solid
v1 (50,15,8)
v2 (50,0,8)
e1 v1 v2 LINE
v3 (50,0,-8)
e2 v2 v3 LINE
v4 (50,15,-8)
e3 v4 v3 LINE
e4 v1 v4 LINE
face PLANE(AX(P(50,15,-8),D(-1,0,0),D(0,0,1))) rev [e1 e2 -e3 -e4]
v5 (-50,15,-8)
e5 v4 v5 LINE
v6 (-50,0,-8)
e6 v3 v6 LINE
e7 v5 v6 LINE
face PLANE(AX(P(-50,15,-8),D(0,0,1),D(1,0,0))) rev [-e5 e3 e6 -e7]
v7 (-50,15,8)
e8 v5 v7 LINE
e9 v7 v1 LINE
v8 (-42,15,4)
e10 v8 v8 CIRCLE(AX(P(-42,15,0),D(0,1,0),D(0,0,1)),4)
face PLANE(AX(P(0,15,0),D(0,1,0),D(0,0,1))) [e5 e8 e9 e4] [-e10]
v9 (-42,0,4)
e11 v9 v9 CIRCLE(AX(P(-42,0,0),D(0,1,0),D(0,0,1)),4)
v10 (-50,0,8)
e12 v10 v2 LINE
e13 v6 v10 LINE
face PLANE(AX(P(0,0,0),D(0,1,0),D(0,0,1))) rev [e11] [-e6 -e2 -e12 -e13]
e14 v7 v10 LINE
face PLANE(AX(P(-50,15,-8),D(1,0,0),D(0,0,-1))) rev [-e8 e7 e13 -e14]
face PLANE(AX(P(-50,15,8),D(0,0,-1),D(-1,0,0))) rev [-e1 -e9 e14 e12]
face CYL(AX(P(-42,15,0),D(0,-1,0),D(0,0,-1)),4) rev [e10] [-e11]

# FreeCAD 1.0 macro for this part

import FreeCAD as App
import Part
import Sketcher
from FreeCAD import Vector
Q = App.Units.Quantity


def add_polygon(sketch, points):
    """Adds a closed chain of lines whose ends are joined by coincident constraints."""
    first, n = sketch.GeometryCount, len(points)
    for a, b in zip(points, points[1:] + points[:1]):
        sketch.addGeometry(Part.LineSegment(App.Vector(*a, 0), App.Vector(*b, 0)), False)
    for i in range(n):
        sketch.addConstraint(Sketcher.Constraint("Coincident", first + i, 2, first + (i + 1) % n, 1))

doc = App.newDocument("Part")
body = doc.addObject("PartDesign::Body", "Body")

# Sketch on XZ plane
sketch1 = body.newObject("Sketcher::SketchObject", "Sketch")
sketch1.AttachmentSupport = (doc.getObject("XZ_Plane"), [""])
sketch1.MapMode = "FlatFace"
add_polygon(sketch1, [(-50, -8), (-50, 8), (50, 8), (50, -8)])  # lines 0-3
sketch1.addGeometry(Part.Circle(Vector(-42, 0, 0), Vector(0, 0, 1), 4), False)  # 4
sketch1.addConstraint(Sketcher.Constraint("Vertical", 0))
sketch1.addConstraint(Sketcher.Constraint("Horizontal", 1))
sketch1.addConstraint(Sketcher.Constraint("Vertical", 2))
sketch1.addConstraint(Sketcher.Constraint("Horizontal", 3))
sketch1.addConstraint(Sketcher.Constraint("Symmetric", 0, 2, 2, 2, -1, 1))
sketch1.addConstraint(Sketcher.Constraint("PointOnObject", 4, 3, -1))
sketch1.addConstraint(Sketcher.Constraint("Diameter", 4, Q("8 mm")))
sketch1.addConstraint(Sketcher.Constraint("DistanceX", 1, 1, 1, 2, Q("100 mm")))
sketch1.addConstraint(Sketcher.Constraint("DistanceY", 0, 1, 0, 2, Q("16 mm")))
sketch1.addConstraint(Sketcher.Constraint("DistanceX", 4, 3, -1, 1, Q("42 mm")))
pad1 = body.newObject("PartDesign::Pad", "Pad")
pad1.Profile = sketch1
pad1.Length = 15
pad1.Reversed = True

doc.recompute()
